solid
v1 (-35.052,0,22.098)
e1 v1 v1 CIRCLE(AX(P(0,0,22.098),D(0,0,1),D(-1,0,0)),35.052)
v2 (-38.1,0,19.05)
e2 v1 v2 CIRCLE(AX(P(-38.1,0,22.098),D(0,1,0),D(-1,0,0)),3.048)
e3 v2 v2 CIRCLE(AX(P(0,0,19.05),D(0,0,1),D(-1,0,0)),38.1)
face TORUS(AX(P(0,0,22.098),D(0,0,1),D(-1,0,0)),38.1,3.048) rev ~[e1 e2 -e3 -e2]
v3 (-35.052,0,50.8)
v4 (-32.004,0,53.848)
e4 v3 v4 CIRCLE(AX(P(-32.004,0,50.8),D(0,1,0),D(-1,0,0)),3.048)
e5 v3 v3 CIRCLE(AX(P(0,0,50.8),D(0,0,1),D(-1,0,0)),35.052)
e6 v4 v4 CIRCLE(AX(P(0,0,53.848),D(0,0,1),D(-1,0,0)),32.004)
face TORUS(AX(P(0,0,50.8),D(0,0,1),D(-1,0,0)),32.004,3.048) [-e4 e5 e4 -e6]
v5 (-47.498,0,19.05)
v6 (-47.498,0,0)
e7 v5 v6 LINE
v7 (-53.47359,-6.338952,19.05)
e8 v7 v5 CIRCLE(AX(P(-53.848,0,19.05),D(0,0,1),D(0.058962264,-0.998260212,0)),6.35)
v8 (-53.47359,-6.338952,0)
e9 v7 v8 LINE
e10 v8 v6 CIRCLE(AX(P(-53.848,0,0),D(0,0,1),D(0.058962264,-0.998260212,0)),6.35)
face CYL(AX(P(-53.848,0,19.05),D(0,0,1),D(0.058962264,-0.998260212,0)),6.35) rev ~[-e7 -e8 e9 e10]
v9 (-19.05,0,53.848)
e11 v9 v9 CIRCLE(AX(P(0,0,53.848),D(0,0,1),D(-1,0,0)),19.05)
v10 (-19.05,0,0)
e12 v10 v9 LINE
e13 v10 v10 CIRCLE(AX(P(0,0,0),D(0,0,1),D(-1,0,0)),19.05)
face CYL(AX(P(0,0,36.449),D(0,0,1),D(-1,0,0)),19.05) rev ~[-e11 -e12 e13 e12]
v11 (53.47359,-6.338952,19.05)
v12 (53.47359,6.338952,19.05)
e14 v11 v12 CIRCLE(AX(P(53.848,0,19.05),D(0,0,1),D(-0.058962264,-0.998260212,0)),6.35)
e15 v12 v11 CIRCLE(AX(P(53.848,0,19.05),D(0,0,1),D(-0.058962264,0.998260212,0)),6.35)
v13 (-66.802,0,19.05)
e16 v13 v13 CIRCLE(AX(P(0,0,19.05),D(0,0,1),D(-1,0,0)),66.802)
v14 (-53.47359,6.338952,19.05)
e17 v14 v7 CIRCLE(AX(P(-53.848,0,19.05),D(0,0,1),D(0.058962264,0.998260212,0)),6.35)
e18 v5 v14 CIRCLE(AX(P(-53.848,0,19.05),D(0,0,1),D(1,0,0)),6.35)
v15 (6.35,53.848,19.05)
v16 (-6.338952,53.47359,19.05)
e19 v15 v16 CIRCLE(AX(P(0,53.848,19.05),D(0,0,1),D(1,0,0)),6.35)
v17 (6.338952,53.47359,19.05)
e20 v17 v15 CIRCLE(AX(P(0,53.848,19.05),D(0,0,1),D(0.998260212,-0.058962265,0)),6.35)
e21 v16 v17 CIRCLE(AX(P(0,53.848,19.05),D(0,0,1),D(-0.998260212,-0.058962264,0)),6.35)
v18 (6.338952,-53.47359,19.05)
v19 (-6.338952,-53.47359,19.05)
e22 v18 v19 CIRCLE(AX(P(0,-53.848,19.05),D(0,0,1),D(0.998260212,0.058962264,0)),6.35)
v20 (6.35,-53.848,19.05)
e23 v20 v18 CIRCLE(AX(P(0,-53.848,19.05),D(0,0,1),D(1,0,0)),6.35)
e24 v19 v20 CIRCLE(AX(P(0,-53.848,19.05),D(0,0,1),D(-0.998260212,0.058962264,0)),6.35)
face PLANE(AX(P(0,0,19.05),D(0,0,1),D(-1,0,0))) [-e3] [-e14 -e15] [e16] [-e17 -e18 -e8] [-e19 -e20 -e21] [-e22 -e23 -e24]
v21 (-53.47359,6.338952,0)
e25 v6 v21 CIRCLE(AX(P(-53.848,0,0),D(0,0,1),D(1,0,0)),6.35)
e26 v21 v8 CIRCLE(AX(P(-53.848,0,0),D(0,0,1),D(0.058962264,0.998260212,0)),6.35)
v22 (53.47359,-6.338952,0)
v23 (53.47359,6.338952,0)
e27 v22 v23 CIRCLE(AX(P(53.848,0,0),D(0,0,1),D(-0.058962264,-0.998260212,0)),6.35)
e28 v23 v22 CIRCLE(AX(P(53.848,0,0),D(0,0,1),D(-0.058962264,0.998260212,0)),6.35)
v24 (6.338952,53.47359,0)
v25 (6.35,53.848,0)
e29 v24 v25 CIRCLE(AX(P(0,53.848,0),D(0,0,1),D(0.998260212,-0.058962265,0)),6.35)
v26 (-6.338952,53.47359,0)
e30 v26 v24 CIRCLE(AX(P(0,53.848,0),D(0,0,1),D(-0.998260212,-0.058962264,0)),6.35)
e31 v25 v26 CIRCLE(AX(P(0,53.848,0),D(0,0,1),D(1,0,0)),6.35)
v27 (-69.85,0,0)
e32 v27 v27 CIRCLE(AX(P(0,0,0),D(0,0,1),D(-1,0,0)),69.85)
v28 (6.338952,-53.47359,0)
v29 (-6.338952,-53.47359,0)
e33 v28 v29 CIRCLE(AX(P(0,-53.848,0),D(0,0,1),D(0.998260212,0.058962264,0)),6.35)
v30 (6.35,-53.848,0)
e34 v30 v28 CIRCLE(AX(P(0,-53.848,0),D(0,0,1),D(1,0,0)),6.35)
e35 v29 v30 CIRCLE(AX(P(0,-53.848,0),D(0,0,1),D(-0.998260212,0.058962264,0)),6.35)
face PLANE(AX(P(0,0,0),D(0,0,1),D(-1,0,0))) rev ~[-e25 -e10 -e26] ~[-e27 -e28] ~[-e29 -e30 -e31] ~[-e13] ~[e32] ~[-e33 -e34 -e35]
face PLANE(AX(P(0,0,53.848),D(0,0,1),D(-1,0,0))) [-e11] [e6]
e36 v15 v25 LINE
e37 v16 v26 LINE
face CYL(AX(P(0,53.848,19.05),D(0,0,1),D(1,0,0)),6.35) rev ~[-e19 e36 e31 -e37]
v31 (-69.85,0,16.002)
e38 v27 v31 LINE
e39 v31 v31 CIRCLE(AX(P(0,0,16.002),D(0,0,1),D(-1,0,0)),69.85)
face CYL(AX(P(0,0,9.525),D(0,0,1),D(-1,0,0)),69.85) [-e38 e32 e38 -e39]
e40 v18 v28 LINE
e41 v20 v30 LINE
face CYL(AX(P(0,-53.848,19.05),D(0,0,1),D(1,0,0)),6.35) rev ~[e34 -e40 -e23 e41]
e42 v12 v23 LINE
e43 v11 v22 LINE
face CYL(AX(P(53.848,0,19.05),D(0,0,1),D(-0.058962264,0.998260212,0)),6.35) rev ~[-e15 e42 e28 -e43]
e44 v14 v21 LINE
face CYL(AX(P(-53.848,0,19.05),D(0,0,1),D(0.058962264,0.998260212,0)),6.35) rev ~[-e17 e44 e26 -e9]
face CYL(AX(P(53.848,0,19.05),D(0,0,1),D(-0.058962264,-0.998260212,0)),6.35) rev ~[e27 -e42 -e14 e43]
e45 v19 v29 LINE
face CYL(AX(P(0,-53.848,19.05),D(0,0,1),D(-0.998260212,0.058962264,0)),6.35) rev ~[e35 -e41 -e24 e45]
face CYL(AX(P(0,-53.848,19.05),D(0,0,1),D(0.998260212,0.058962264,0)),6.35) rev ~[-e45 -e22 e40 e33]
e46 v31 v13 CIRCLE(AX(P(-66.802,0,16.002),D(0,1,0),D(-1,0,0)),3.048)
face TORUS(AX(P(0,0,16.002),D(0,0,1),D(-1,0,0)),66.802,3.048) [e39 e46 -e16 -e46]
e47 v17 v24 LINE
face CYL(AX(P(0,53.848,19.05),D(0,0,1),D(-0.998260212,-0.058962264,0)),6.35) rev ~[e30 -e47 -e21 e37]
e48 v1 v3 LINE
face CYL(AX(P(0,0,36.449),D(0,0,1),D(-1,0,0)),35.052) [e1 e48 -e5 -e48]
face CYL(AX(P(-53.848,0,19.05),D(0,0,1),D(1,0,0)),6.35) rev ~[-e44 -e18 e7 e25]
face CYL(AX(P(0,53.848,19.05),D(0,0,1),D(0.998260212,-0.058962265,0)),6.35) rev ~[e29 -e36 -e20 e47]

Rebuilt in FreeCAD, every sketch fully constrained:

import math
import FreeCAD as App
import Part
import Sketcher
Q = App.Units.Quantity


def edges_at(feature, points):
    """Names of the edges that pass closest to the given points."""
    edges = feature.Shape.Edges
    near = lambda p: min(range(len(edges)), key=lambda i: edges[i].distToShape(Part.Vertex(*p))[0])
    return sorted({f"Edge{near(p) + 1}" for p in points})


def add_polygon(sketch, points):
    """Adds a closed chain of lines whose ends are joined by coincident constraints."""
    first, n = sketch.GeometryCount, len(points)
    for a, b in zip(points, points[1:] + points[:1]):
        sketch.addGeometry(Part.LineSegment(App.Vector(*a, 0), App.Vector(*b, 0)), False)
    for i in range(n):
        sketch.addConstraint(Sketcher.Constraint("Coincident", first + i, 2, first + (i + 1) % n, 1))

doc = App.newDocument("Part")
body = doc.addObject("PartDesign::Body", "Body")

sketch1 = doc.addObject("Sketcher::SketchObject", "Sketch")
body.addObject(sketch1)
sketch1.AttachmentSupport = (doc.XZ_Plane, [""])
sketch1.MapMode = "FlatFace"
add_polygon(sketch1, [(-70, 19), (-70, 0), (-19, 0), (-19, 19)])
sketch1.addConstraint([
    Sketcher.Constraint("Vertical", 0),
    Sketcher.Constraint("Horizontal", 1),
    Sketcher.Constraint("Vertical", 2),
    Sketcher.Constraint("Horizontal", 3),
    Sketcher.Constraint("PointOnObject", 0, 2, -1),
    Sketcher.Constraint("DistanceX", 1, 1, 1, 2, Q("2 in")),
    Sketcher.Constraint("DistanceY", 0, 2, 0, 1, Q("0.75 in")),
    Sketcher.Constraint("DistanceX", 0, 2, -1, 1, Q("2.75 in")),
])
revolution = doc.addObject("PartDesign::Revolution", "Revolution")
body.addObject(revolution)
revolution.Profile = sketch1
revolution.ReferenceAxis = (sketch1, ["V_Axis"])
revolution.Angle = 360

sketch2 = doc.addObject("Sketcher::SketchObject", "Sketch001")
body.addObject(sketch2)
sketch2.AttachmentSupport = (doc.XZ_Plane, [""])
sketch2.MapMode = "FlatFace"
add_polygon(sketch2, [(-35, 54), (-35, 19), (-19, 19), (-19, 54)])
sketch2.addConstraint([
    Sketcher.Constraint("Vertical", 0),
    Sketcher.Constraint("Horizontal", 1),
    Sketcher.Constraint("Vertical", 2),
    Sketcher.Constraint("Horizontal", 3),
    Sketcher.Constraint("DistanceX", 1, 1, 1, 2, Q("0.63 in")),
    Sketcher.Constraint("DistanceY", 0, 2, 0, 1, Q("1.37 in")),
    Sketcher.Constraint("DistanceX", 0, 2, -1, 1, Q("1.38 in")),
    Sketcher.Constraint("DistanceY", -1, 1, 0, 2, Q("0.75 in")),
])
revolution2 = doc.addObject("PartDesign::Revolution", "Revolution001")
body.addObject(revolution2)
revolution2.Profile = sketch2
revolution2.ReferenceAxis = (sketch2, ["V_Axis"])
revolution2.Angle = 360
doc.recompute()

fillet = doc.addObject("PartDesign::Fillet", "Fillet")
body.addObject(fillet)
fillet.Base = (revolution2, edges_at(revolution2, [(35.052, 0, 53.848), (69.85, 0, 19.05), (35.052, 0, 19.05)]))
fillet.Radius = Q("0.12 in")

sketch3 = doc.addObject("Sketcher::SketchObject", "Sketch002")
body.addObject(sketch3)
sketch3.AttachmentSupport = (doc.XY_Plane, [""])
sketch3.MapMode = "FlatFace"
sketch3.AttachmentOffset = App.Placement(App.Vector(0, 0, 0.75 * 25.4), App.Rotation())
sketch3.addGeometry([
    Part.ArcOfCircle(Part.Circle(App.Vector(0, 53.85, 0), App.Vector(0, 0, 1), 6.35), math.radians(-177), math.radians(-3)),
    Part.ArcOfCircle(Part.Circle(App.Vector(0, 53.85, 0), App.Vector(0, 0, 1), 6.35), math.radians(-3.38), math.radians(0)),
    Part.ArcOfCircle(Part.Circle(App.Vector(0, 53.85, 0), App.Vector(0, 0, 1), 6.35), math.radians(0), math.radians(183)),
    Part.ArcOfCircle(Part.Circle(App.Vector(-53.85, 0, 0), App.Vector(0, 0, 1), 6.35), math.radians(0), math.radians(87)),
    Part.ArcOfCircle(Part.Circle(App.Vector(-53.85, 0, 0), App.Vector(0, 0, 1), 6.35), math.radians(87), math.radians(273)),
    Part.ArcOfCircle(Part.Circle(App.Vector(-53.85, 0, 0), App.Vector(0, 0, 1), 6.35), math.radians(-87), math.radians(0)),
    Part.ArcOfCircle(Part.Circle(App.Vector(53.85, 0, 0), App.Vector(0, 0, 1), 6.35), math.radians(-93), math.radians(93)),
    Part.ArcOfCircle(Part.Circle(App.Vector(53.85, 0, 0), App.Vector(0, 0, 1), 6.35), math.radians(93), math.radians(267)),
    Part.ArcOfCircle(Part.Circle(App.Vector(0, -53.85, 0), App.Vector(0, 0, 1), 6.35), math.radians(3), math.radians(177)),
    Part.ArcOfCircle(Part.Circle(App.Vector(0, -53.85, 0), App.Vector(0, 0, 1), 6.35), math.radians(177), math.radians(360)),
    Part.ArcOfCircle(Part.Circle(App.Vector(0, -53.85, 0), App.Vector(0, 0, 1), 6.35), math.radians(0), math.radians(3.38)),
], False)
sketch3.addConstraint([
    Sketcher.Constraint("Tangent", 0, 2, 1, 1),
    Sketcher.Constraint("Tangent", 1, 2, 2, 1),
    Sketcher.Constraint("Tangent", 2, 2, 0, 1),
    Sketcher.Constraint("Tangent", 3, 2, 4, 1),
    Sketcher.Constraint("Tangent", 4, 2, 5, 1),
    Sketcher.Constraint("Tangent", 5, 2, 3, 1),
    Sketcher.Constraint("Tangent", 6, 1, 7, 2),
    Sketcher.Constraint("Coincident", 7, 1, 6, 2),
    Sketcher.Constraint("Tangent", 8, 2, 9, 1),
    Sketcher.Constraint("Tangent", 9, 2, 10, 1),
    Sketcher.Constraint("Tangent", 10, 2, 8, 1),
    Sketcher.Constraint("Equal", 2, 3),
    Sketcher.Constraint("Equal", 5, 6),
    Sketcher.Constraint("Equal", 7, 8),
    Sketcher.Constraint("Symmetric", 3, 3, 6, 3, -1, 1),
    Sketcher.Constraint("Symmetric", 0, 3, 8, 3, -1, 1),
    Sketcher.Constraint("Symmetric", 0, 2, 2, 2, -2),
    Sketcher.Constraint("Symmetric", 4, 2, 6, 1, -2),
    Sketcher.Constraint("PointOnObject", 5, 2, -1),
    Sketcher.Constraint("Horizontal", 2, 3, 1, 2),
    Sketcher.Constraint("Horizontal", 3, 2, 7, 1),
    Sketcher.Constraint("Horizontal", 10, 3, 9, 2),
    Sketcher.Constraint("Horizontal", 8, 2, 10, 2),
    Sketcher.Constraint("Vertical", 3, 2, 4, 2),
    Sketcher.Constraint("Vertical", 2, 2, 8, 2),
    Sketcher.Constraint("Radius", 0, Q("0.25 in")),
    Sketcher.Constraint("DistanceY", -1, 1, 0, 3, Q("2.12 in")),
    Sketcher.Constraint("DistanceX", 3, 3, -1, 1, Q("2.12 in")),
    Sketcher.Constraint("DistanceY", -1, 1, 0, 2, Q("53.47359 mm")),
    Sketcher.Constraint("DistanceX", 3, 2, -1, 1, Q("53.47359 mm")),
])
pocket1 = doc.addObject("PartDesign::Pocket", "Pocket")
body.addObject(pocket1)
pocket1.Profile = sketch3
pocket1.Type = "ThroughAll"

doc.recompute()
